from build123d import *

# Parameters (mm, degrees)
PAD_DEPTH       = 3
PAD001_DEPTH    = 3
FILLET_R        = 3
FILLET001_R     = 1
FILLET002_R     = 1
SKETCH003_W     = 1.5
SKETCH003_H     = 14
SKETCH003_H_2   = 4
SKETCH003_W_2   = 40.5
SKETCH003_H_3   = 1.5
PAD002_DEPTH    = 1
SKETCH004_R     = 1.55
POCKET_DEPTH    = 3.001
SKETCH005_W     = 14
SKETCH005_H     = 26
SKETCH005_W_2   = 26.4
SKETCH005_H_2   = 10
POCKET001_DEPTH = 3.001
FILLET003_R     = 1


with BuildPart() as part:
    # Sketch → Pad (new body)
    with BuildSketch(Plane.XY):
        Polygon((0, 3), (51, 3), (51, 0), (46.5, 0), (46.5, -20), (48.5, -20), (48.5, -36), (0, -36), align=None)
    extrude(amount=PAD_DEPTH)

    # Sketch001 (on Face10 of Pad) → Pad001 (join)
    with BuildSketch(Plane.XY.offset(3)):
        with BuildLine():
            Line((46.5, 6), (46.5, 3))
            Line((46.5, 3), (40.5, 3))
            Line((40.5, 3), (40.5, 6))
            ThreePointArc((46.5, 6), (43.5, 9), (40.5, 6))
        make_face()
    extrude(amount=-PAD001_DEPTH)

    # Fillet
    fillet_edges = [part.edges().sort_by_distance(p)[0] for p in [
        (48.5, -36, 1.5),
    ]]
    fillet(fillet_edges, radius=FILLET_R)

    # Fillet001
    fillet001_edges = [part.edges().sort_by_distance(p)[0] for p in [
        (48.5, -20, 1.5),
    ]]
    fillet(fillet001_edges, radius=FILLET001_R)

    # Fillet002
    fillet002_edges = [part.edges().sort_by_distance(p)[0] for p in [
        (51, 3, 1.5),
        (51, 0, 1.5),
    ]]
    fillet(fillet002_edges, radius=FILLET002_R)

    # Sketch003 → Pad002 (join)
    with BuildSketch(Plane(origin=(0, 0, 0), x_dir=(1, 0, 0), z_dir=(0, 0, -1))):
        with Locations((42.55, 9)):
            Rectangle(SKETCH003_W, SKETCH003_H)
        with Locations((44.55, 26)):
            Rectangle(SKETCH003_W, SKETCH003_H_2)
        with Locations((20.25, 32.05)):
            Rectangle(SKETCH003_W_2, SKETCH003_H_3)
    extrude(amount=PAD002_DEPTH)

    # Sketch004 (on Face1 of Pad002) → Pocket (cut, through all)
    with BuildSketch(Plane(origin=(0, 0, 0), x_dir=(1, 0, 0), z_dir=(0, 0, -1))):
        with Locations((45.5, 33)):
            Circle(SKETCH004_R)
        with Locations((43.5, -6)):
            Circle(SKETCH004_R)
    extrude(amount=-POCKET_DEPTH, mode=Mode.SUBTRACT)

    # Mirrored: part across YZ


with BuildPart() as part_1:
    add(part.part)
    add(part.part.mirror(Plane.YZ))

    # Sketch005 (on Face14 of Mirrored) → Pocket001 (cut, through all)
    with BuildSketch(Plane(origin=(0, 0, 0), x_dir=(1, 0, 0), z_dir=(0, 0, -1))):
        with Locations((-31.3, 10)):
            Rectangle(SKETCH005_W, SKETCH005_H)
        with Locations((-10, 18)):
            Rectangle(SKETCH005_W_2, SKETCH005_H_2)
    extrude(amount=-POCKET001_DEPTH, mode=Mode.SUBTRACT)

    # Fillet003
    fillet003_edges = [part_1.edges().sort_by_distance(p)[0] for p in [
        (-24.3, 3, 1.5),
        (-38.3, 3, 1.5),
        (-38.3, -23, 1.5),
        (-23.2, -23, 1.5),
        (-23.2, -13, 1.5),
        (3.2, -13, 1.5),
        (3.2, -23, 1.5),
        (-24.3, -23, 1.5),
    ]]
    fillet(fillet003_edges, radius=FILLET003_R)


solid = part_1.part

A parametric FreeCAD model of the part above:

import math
import FreeCAD as App
import Part
import Sketcher

V = App.Vector
Q = App.Units.Quantity


def edges_at(feature, points):
    """Names of the edges that pass closest to the given points."""
    edges = feature.Shape.Edges
    near = lambda p: min(range(len(edges)), key=lambda i: edges[i].distToShape(Part.Vertex(*p))[0])
    return sorted({f"Edge{near(p) + 1}" for p in points})

doc = App.newDocument("Part")
body = doc.addObject("PartDesign::Body", "Body")

sketch1 = body.newObject("Sketcher::SketchObject", "Sketch")
sketch1.AttachmentSupport = (doc.getObject("XY_Plane"), [""])
sketch1.MapMode = "FlatFace"
sketch1.addGeometry(Part.LineSegment(V(51, 3, 0), V(0, 3, 0)), False)
sketch1.addGeometry(Part.LineSegment(V(0, 3, 0), V(0, -36, 0)), False)
sketch1.addGeometry(Part.LineSegment(V(0, -36, 0), V(48.5, -36, 0)), False)
sketch1.addGeometry(Part.LineSegment(V(48.5, -36, 0), V(48.5, -20, 0)), False)
sketch1.addGeometry(Part.LineSegment(V(48.5, -20, 0), V(46.5, -20, 0)), False)
sketch1.addGeometry(Part.LineSegment(V(46.5, -20, 0), V(46.5, 0, 0)), False)
sketch1.addGeometry(Part.LineSegment(V(46.5, 0, 0), V(51, 0, 0)), False)
sketch1.addGeometry(Part.LineSegment(V(51, 0, 0), V(51, 3, 0)), False)
sketch1.addConstraint(Sketcher.Constraint("Coincident", 0, 2, 1, 1))
sketch1.addConstraint(Sketcher.Constraint("Coincident", 1, 2, 2, 1))
sketch1.addConstraint(Sketcher.Constraint("Coincident", 2, 2, 3, 1))
sketch1.addConstraint(Sketcher.Constraint("Coincident", 3, 2, 4, 1))
sketch1.addConstraint(Sketcher.Constraint("Coincident", 4, 2, 5, 1))
sketch1.addConstraint(Sketcher.Constraint("Coincident", 5, 2, 6, 1))
sketch1.addConstraint(Sketcher.Constraint("Coincident", 6, 2, 7, 1))
sketch1.addConstraint(Sketcher.Constraint("Coincident", 7, 2, 0, 1))
sketch1.addConstraint(Sketcher.Constraint("Horizontal", 0))
sketch1.addConstraint(Sketcher.Constraint("Vertical", 1))
sketch1.addConstraint(Sketcher.Constraint("Horizontal", 2))
sketch1.addConstraint(Sketcher.Constraint("Vertical", 3))
sketch1.addConstraint(Sketcher.Constraint("Horizontal", 4))
sketch1.addConstraint(Sketcher.Constraint("Vertical", 5))
sketch1.addConstraint(Sketcher.Constraint("Horizontal", 6))
sketch1.addConstraint(Sketcher.Constraint("Vertical", 7))
sketch1.addConstraint(Sketcher.Constraint("PointOnObject", 0, 2, -2))
sketch1.addConstraint(Sketcher.Constraint("PointOnObject", 5, 2, -1))
sketch1.addConstraint(Sketcher.Constraint("DistanceX", 0, 2, 0, 1, Q("51 mm")))
sketch1.addConstraint(Sketcher.Constraint("DistanceX", 4, 2, 4, 1, Q("2 mm")))
sketch1.addConstraint(Sketcher.Constraint("DistanceY", 1, 2, 1, 1, Q("39 mm")))
sketch1.addConstraint(Sketcher.Constraint("DistanceY", 3, 1, 3, 2, Q("16 mm")))
sketch1.addConstraint(Sketcher.Constraint("DistanceY", 5, 1, 5, 2, Q("20 mm")))
sketch1.addConstraint(Sketcher.Constraint("DistanceX", 2, 1, 2, 2, Q("48.5 mm")))
pad1 = body.newObject("PartDesign::Pad", "Pad")
pad1.Profile = sketch1
pad1.Length = 3

sketch2 = body.newObject("Sketcher::SketchObject", "Sketch001")
sketch2.AttachmentSupport = (doc.getObject("XY_Plane"), [""])
sketch2.MapMode = "FlatFace"
sketch2.AttachmentOffset = App.Placement(V(0, 0, 3), App.Rotation())
sketch2.addGeometry(Part.LineSegment(V(46.5, 3, 0), V(46.5, 6, 0)), False)
sketch2.addGeometry(Part.ArcOfCircle(Part.Circle(V(43.5, 6, 0), V(0, 0, 1), 3), math.radians(0), math.radians(180)), False)
sketch2.addGeometry(Part.LineSegment(V(40.5, 6, 0), V(40.5, 3, 0)), False)
sketch2.addGeometry(Part.LineSegment(V(40.5, 3, 0), V(46.5, 3, 0)), False)
sketch2.addConstraint(Sketcher.Constraint("Tangent", 0, 2, 1, 1))
sketch2.addConstraint(Sketcher.Constraint("Tangent", 1, 2, 2, 1))
sketch2.addConstraint(Sketcher.Constraint("Coincident", 2, 2, 3, 1))
sketch2.addConstraint(Sketcher.Constraint("Coincident", 3, 2, 0, 1))
sketch2.addConstraint(Sketcher.Constraint("Vertical", 0))
sketch2.addConstraint(Sketcher.Constraint("Vertical", 2))
sketch2.addConstraint(Sketcher.Constraint("Horizontal", 3))
sketch2.addConstraint(Sketcher.Constraint("Radius", 1, Q("3 mm")))
sketch2.addConstraint(Sketcher.Constraint("DistanceY", 0, 1, 0, 2, Q("3 mm")))
sketch2.addConstraint(Sketcher.Constraint("DistanceY", -1, 1, 1, 3, Q("6 mm")))
sketch2.addConstraint(Sketcher.Constraint("DistanceX", -1, 1, 1, 3, Q("43.5 mm")))
pad2 = body.newObject("PartDesign::Pad", "Pad001")
pad2.Profile = sketch2
pad2.Length = 3
pad2.Reversed = True
doc.recompute()

fillet = body.newObject("PartDesign::Fillet", "Fillet")
fillet.Base = (pad2, edges_at(pad2, [(48.5, -36, 1.5)]))
fillet.Radius = 3
doc.recompute()

fillet2 = body.newObject("PartDesign::Fillet", "Fillet001")
fillet2.Base = (fillet, edges_at(fillet, [(48.5, -20, 1.5)]))
fillet2.Radius = 1
doc.recompute()

fillet3 = body.newObject("PartDesign::Fillet", "Fillet002")
fillet3.Base = (fillet2, edges_at(fillet2, [(51, 3, 1.5), (51, 0, 1.5)]))
fillet3.Radius = 1

sketch3 = body.newObject("Sketcher::SketchObject", "Sketch002")
sketch3.AttachmentSupport = (doc.getObject("XY_Plane"), [""])
sketch3.MapMode = "FlatFace"
sketch3.addGeometry(Part.LineSegment(V(41.8, -16, 0), V(41.8, -2, 0)), False)
sketch3.addGeometry(Part.LineSegment(V(41.8, -2, 0), V(43.3, -2, 0)), False)
sketch3.addGeometry(Part.LineSegment(V(43.3, -2, 0), V(43.3, -16, 0)), False)
sketch3.addGeometry(Part.LineSegment(V(43.3, -16, 0), V(41.8, -16, 0)), False)
sketch3.addGeometry(Part.LineSegment(V(43.8, -28, 0), V(43.8, -24, 0)), False)
sketch3.addGeometry(Part.LineSegment(V(43.8, -24, 0), V(45.3, -24, 0)), False)
sketch3.addGeometry(Part.LineSegment(V(45.3, -24, 0), V(45.3, -28, 0)), False)
sketch3.addGeometry(Part.LineSegment(V(45.3, -28, 0), V(43.8, -28, 0)), False)
sketch3.addGeometry(Part.LineSegment(V(0, -32.8, 0), V(0, -31.3, 0)), False)
sketch3.addGeometry(Part.LineSegment(V(0, -31.3, 0), V(40.5, -31.3, 0)), False)
sketch3.addGeometry(Part.LineSegment(V(40.5, -31.3, 0), V(40.5, -32.8, 0)), False)
sketch3.addGeometry(Part.LineSegment(V(40.5, -32.8, 0), V(0, -32.8, 0)), False)
sketch3.addConstraint(Sketcher.Constraint("Coincident", 0, 2, 1, 1))
sketch3.addConstraint(Sketcher.Constraint("Coincident", 1, 2, 2, 1))
sketch3.addConstraint(Sketcher.Constraint("Coincident", 2, 2, 3, 1))
sketch3.addConstraint(Sketcher.Constraint("Coincident", 3, 2, 0, 1))
sketch3.addConstraint(Sketcher.Constraint("Coincident", 4, 2, 5, 1))
sketch3.addConstraint(Sketcher.Constraint("Coincident", 5, 2, 6, 1))
sketch3.addConstraint(Sketcher.Constraint("Coincident", 6, 2, 7, 1))
sketch3.addConstraint(Sketcher.Constraint("Coincident", 7, 2, 4, 1))
sketch3.addConstraint(Sketcher.Constraint("Coincident", 8, 2, 9, 1))
sketch3.addConstraint(Sketcher.Constraint("Coincident", 9, 2, 10, 1))
sketch3.addConstraint(Sketcher.Constraint("Coincident", 10, 2, 11, 1))
sketch3.addConstraint(Sketcher.Constraint("Coincident", 11, 2, 8, 1))
sketch3.addConstraint(Sketcher.Constraint("Vertical", 0))
sketch3.addConstraint(Sketcher.Constraint("Horizontal", 1))
sketch3.addConstraint(Sketcher.Constraint("Vertical", 2))
sketch3.addConstraint(Sketcher.Constraint("Horizontal", 3))
sketch3.addConstraint(Sketcher.Constraint("Vertical", 4))
sketch3.addConstraint(Sketcher.Constraint("Horizontal", 5))
sketch3.addConstraint(Sketcher.Constraint("Vertical", 6))
sketch3.addConstraint(Sketcher.Constraint("Horizontal", 7))
sketch3.addConstraint(Sketcher.Constraint("Vertical", 8))
sketch3.addConstraint(Sketcher.Constraint("Horizontal", 9))
sketch3.addConstraint(Sketcher.Constraint("Vertical", 10))
sketch3.addConstraint(Sketcher.Constraint("Horizontal", 11))
sketch3.addConstraint(Sketcher.Constraint("PointOnObject", 8, 2, -2))
sketch3.addConstraint(Sketcher.Constraint("Equal", 3, 5))
sketch3.addConstraint(Sketcher.Constraint("Equal", 7, 8))
sketch3.addConstraint(Sketcher.Constraint("DistanceY", 0, 1, 0, 2, Q("14 mm")))
sketch3.addConstraint(Sketcher.Constraint("DistanceY", 4, 1, 4, 2, Q("4 mm")))
sketch3.addConstraint(Sketcher.Constraint("DistanceX", 1, 1, 1, 2, Q("1.5 mm")))
sketch3.addConstraint(Sketcher.Constraint("DistanceX", 9, 1, 9, 2, Q("40.5 mm")))
sketch3.addConstraint(Sketcher.Constraint("DistanceY", 0, 2, -1, 1, Q("2 mm")))
sketch3.addConstraint(Sketcher.Constraint("DistanceY", 4, 2, -1, 1, Q("24 mm")))
sketch3.addConstraint(Sketcher.Constraint("DistanceX", 3, 2, 4, 2, Q("2 mm")))
sketch3.addConstraint(Sketcher.Constraint("DistanceX", -1, 1, 0, 2, Q("41.8 mm")))
sketch3.addConstraint(Sketcher.Constraint("DistanceY", 8, 2, -1, 1, Q("31.3 mm")))
pad3 = body.newObject("PartDesign::Pad", "Pad002")
pad3.Profile = sketch3
pad3.Length = 1
pad3.Reversed = True

sketch4 = body.newObject("Sketcher::SketchObject", "Sketch003")
sketch4.AttachmentSupport = (doc.getObject("XY_Plane"), [""])
sketch4.MapMode = "FlatFace"
sketch4.addGeometry(Part.Circle(V(45.5, -33, 0), V(0, 0, 1), 1.55), False)
sketch4.addGeometry(Part.Circle(V(43.5, 6, 0), V(0, 0, 1), 1.55), False)
sketch4.addConstraint(Sketcher.Constraint("Equal", 0, 1))
sketch4.addConstraint(Sketcher.Constraint("Diameter", 0, Q("3.1 mm")))
sketch4.addConstraint(Sketcher.Constraint("DistanceY", 0, 3, -1, 1, Q("33 mm")))
sketch4.addConstraint(Sketcher.Constraint("DistanceY", -1, 1, 1, 3, Q("6 mm")))
sketch4.addConstraint(Sketcher.Constraint("DistanceX", 1, 3, 0, 3, Q("2 mm")))
sketch4.addConstraint(Sketcher.Constraint("DistanceX", -1, 1, 0, 3, Q("45.5 mm")))
pocket1 = body.newObject("PartDesign::Pocket", "Pocket")
pocket1.Profile = sketch4
pocket1.Type = "ThroughAll"
pocket1.Reversed = True
body2 = doc.addObject("PartDesign::Body", "Body001")
doc.recompute()

body2.BaseFeature = body
doc.recompute()

mirroring = doc.addObject("Part::Mirroring", "Mirroring")
mirroring.Source = body
mirroring.Base = V(0, 0, 0)
mirroring.Normal = V(1, 0, 0)
body3 = doc.addObject("PartDesign::Body", "Body002")
body3.BaseFeature = mirroring
boolean = body2.newObject("PartDesign::Boolean", "Boolean")
boolean.Type = "Fuse"
boolean.addObjects([body3])
doc.recompute()

sketch5 = body2.newObject("Sketcher::SketchObject", "Sketch004")
sketch5.AttachmentSupport = (doc.getObject("XY_Plane001"), [""])
sketch5.MapMode = "FlatFace"
sketch5.addGeometry(Part.LineSegment(V(-38.3, -23, 0), V(-38.3, 3, 0)), False)
sketch5.addGeometry(Part.LineSegment(V(-38.3, 3, 0), V(-24.3, 3, 0)), False)
sketch5.addGeometry(Part.LineSegment(V(-24.3, 3, 0), V(-24.3, -23, 0)), False)
sketch5.addGeometry(Part.LineSegment(V(-24.3, -23, 0), V(-38.3, -23, 0)), False)
sketch5.addGeometry(Part.LineSegment(V(-23.2, -23, 0), V(-23.2, -13, 0)), False)
sketch5.addGeometry(Part.LineSegment(V(-23.2, -13, 0), V(3.2, -13, 0)), False)
sketch5.addGeometry(Part.LineSegment(V(3.2, -13, 0), V(3.2, -23, 0)), False)
sketch5.addGeometry(Part.LineSegment(V(3.2, -23, 0), V(-23.2, -23, 0)), False)
sketch5.addConstraint(Sketcher.Constraint("Coincident", 0, 2, 1, 1))
sketch5.addConstraint(Sketcher.Constraint("Coincident", 1, 2, 2, 1))
sketch5.addConstraint(Sketcher.Constraint("Coincident", 2, 2, 3, 1))
sketch5.addConstraint(Sketcher.Constraint("Coincident", 3, 2, 0, 1))
sketch5.addConstraint(Sketcher.Constraint("Coincident", 4, 2, 5, 1))
sketch5.addConstraint(Sketcher.Constraint("Coincident", 5, 2, 6, 1))
sketch5.addConstraint(Sketcher.Constraint("Coincident", 6, 2, 7, 1))
sketch5.addConstraint(Sketcher.Constraint("Coincident", 7, 2, 4, 1))
sketch5.addConstraint(Sketcher.Constraint("Vertical", 0))
sketch5.addConstraint(Sketcher.Constraint("Horizontal", 1))
sketch5.addConstraint(Sketcher.Constraint("Vertical", 2))
sketch5.addConstraint(Sketcher.Constraint("Horizontal", 3))
sketch5.addConstraint(Sketcher.Constraint("Vertical", 4))
sketch5.addConstraint(Sketcher.Constraint("Horizontal", 5))
sketch5.addConstraint(Sketcher.Constraint("Vertical", 6))
sketch5.addConstraint(Sketcher.Constraint("Horizontal", 7))
sketch5.addConstraint(Sketcher.Constraint("Horizontal", 3, 2, 6, 2))
sketch5.addConstraint(Sketcher.Constraint("DistanceX", 1, 1, 1, 2, Q("14 mm")))
sketch5.addConstraint(Sketcher.Constraint("DistanceY", 0, 1, 0, 2, Q("26 mm")))
sketch5.addConstraint(Sketcher.Constraint("DistanceY", 4, 1, 4, 2, Q("10 mm")))
sketch5.addConstraint(Sketcher.Constraint("DistanceX", 5, 1, 5, 2, Q("26.4 mm")))
sketch5.addConstraint(Sketcher.Constraint("DistanceY", -1, 1, 0, 2, Q("3 mm")))
sketch5.addConstraint(Sketcher.Constraint("DistanceX", 0, 2, -1, 1, Q("38.3 mm")))
sketch5.addConstraint(Sketcher.Constraint("DistanceX", 4, 2, -1, 1, Q("23.2 mm")))
pocket2 = body2.newObject("PartDesign::Pocket", "Pocket001")
pocket2.Profile = sketch5
pocket2.Type = "ThroughAll"
pocket2.Reversed = True
doc.recompute()

fillet4 = body2.newObject("PartDesign::Fillet", "Fillet003")
fillet4.Base = (pocket2, edges_at(pocket2, [
    (-24.3, 3, 1.5),
    (-38.3, 3, 1.5),
    (-38.3, -23, 1.5),
    (-23.2, -23, 1.5),
    (-23.2, -13, 1.5),
    (3.2, -13, 1.5),
    (3.2, -23, 1.5),
    (-24.3, -23, 1.5),
]))
fillet4.Radius = 1
mirroring.Visibility = False

doc.recompute()
